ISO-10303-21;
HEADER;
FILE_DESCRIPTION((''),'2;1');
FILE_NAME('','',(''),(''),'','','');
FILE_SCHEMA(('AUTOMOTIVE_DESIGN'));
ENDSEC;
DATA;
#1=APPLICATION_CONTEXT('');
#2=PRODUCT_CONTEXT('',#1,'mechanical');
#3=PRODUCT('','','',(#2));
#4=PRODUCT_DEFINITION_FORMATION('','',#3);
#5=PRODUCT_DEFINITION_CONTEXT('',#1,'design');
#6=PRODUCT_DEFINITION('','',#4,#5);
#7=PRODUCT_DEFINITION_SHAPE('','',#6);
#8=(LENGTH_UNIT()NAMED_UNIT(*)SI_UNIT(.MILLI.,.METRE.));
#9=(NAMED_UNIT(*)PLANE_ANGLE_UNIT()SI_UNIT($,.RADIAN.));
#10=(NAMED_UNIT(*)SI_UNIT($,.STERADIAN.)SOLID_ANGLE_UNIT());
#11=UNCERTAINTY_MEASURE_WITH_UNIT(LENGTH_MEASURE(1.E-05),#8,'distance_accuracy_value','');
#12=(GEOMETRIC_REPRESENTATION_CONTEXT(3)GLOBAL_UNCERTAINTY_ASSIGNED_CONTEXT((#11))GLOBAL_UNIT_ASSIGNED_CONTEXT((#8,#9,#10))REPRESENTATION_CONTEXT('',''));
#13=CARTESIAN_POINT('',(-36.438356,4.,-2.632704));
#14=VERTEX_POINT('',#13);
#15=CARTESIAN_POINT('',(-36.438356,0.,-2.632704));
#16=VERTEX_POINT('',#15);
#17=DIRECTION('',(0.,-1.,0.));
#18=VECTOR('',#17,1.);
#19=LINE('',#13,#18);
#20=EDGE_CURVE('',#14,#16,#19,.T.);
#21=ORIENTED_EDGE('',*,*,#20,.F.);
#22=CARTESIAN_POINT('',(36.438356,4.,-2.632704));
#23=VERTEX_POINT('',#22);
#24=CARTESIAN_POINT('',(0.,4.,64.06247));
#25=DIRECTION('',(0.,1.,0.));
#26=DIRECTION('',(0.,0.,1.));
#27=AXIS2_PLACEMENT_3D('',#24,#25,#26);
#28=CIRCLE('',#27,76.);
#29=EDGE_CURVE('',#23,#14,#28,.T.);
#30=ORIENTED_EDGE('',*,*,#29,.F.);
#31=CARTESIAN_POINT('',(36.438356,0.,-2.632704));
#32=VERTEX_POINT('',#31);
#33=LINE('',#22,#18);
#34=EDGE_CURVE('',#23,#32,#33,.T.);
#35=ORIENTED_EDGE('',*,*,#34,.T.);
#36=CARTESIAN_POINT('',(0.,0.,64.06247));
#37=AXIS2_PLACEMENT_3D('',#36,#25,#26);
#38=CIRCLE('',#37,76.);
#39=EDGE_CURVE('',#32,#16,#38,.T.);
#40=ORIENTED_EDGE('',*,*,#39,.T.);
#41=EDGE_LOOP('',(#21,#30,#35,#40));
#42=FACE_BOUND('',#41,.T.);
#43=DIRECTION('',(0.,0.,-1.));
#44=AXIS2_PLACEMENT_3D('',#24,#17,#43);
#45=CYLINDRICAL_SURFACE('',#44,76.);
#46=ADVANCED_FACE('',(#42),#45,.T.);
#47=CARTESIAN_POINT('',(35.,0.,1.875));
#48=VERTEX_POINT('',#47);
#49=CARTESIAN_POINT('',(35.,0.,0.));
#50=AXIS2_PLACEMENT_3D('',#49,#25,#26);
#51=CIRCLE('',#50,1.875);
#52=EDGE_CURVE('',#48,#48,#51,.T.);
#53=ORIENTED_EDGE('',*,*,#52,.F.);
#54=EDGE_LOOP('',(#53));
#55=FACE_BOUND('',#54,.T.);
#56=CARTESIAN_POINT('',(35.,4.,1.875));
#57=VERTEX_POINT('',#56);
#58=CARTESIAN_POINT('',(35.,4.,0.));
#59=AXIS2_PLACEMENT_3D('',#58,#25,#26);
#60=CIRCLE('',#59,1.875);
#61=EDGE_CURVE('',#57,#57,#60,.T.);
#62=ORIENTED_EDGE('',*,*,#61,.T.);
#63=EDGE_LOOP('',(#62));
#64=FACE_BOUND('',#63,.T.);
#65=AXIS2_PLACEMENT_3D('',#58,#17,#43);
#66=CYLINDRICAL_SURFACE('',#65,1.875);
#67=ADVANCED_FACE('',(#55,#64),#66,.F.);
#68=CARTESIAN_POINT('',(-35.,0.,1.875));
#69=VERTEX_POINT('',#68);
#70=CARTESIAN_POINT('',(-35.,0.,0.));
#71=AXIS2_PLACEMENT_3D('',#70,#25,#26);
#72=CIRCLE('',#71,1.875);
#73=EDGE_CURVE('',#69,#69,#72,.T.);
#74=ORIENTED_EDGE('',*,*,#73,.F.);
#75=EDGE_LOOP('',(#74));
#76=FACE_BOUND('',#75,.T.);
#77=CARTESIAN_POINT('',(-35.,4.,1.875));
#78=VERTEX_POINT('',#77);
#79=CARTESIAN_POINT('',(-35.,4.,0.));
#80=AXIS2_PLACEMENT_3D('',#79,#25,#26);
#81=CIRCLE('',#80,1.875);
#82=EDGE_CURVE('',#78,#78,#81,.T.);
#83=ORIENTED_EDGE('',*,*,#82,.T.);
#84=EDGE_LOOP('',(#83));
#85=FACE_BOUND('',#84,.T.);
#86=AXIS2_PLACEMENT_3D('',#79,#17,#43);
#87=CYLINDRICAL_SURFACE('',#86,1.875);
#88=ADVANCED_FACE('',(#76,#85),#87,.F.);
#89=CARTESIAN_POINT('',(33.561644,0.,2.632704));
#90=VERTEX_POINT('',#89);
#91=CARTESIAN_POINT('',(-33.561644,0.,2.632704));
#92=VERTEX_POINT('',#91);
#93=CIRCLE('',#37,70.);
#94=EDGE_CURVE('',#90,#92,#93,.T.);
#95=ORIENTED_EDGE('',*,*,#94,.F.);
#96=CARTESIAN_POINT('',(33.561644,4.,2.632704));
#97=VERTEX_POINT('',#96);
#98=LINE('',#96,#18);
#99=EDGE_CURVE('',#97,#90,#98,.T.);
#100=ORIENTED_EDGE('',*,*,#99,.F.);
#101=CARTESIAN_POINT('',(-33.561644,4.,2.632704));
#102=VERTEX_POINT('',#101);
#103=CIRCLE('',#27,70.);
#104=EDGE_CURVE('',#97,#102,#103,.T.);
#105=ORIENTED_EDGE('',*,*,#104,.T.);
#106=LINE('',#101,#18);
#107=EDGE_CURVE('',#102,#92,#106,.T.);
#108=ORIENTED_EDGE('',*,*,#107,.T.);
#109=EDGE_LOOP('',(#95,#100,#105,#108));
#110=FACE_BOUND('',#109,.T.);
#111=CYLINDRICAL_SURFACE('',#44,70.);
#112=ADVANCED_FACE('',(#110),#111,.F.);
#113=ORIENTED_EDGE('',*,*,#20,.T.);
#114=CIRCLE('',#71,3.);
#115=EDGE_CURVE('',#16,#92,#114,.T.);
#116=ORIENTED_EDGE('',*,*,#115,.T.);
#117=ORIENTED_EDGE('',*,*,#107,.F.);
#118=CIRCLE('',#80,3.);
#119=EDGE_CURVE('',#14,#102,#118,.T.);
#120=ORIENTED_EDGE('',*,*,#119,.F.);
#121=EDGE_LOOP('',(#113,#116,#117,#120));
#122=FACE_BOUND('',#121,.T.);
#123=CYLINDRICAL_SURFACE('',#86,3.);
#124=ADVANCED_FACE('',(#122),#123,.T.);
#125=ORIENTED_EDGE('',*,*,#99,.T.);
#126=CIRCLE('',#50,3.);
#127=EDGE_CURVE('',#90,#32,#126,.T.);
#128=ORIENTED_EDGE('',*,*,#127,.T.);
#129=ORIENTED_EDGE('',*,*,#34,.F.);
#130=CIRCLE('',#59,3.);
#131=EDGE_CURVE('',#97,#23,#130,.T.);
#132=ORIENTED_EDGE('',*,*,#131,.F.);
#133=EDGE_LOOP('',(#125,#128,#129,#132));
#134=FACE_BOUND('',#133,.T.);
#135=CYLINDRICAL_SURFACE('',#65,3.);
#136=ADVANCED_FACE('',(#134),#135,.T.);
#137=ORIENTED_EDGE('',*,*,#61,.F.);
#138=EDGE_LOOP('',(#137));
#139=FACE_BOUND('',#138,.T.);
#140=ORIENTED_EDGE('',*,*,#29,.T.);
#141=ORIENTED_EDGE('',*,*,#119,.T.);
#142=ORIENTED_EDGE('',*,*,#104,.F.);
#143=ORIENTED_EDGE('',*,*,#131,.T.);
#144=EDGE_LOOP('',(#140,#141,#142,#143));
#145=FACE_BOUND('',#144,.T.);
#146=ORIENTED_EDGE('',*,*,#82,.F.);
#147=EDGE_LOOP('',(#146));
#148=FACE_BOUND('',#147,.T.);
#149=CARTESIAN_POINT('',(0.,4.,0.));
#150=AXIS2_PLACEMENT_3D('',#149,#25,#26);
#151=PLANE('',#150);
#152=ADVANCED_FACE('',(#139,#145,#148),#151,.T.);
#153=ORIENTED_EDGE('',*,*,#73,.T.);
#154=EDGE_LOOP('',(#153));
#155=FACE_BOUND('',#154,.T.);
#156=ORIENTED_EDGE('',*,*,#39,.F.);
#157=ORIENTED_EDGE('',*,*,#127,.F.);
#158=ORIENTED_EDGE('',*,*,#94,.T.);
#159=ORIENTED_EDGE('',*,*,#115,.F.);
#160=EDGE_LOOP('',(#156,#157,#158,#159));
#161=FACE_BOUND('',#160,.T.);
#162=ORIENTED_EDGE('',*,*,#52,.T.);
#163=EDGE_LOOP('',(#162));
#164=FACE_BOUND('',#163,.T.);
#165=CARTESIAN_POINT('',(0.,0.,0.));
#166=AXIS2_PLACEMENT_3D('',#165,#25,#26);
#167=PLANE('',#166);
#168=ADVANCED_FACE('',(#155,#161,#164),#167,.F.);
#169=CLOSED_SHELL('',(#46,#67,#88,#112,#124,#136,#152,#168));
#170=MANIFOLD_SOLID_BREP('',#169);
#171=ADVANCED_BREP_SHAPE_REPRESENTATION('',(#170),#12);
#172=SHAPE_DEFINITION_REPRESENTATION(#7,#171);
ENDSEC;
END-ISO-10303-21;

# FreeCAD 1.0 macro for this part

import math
import FreeCAD as App
import Part
import Sketcher

doc = App.newDocument("Part")
params = doc.addObject("Spreadsheet::Sheet", "Params")
for row, (alias, value) in enumerate([
    ("sketch1_radius", "3 mm"),
    ("sketch1_radius2", "70 mm"),
    ("sketch1_diameter", "3.75 mm"),
    ("pad1_length", "4 mm"),
], start=1):
    params.set(f"A{row}", alias)
    params.set(f"B{row}", "=" + value)
    params.setAlias(f"B{row}", alias)

body = doc.addObject("PartDesign::Body", "Body")

# Sketch on XZ plane
sketch1 = body.newObject("Sketcher::SketchObject", "Sketch")
sketch1.AttachmentSupport = (doc.getObject("XZ_Plane"), [""])
sketch1.MapMode = "FlatFace"
sketch1.addGeometry([
    Part.ArcOfCircle(Part.Circle(App.Vector(-35, 0, 0), App.Vector(0, 0, 1), 3), math.radians(61), math.radians(241)),  # 0
    Part.ArcOfCircle(Part.Circle(App.Vector(0, 64.1, 0), App.Vector(0, 0, 1), 70), math.radians(-119), math.radians(-61)),  # 1
    Part.ArcOfCircle(Part.Circle(App.Vector(35, 0, 0), App.Vector(0, 0, 1), 3), math.radians(-61), math.radians(119)),  # 2
    Part.ArcOfCircle(Part.Circle(App.Vector(0, 64.1, 0), App.Vector(0, 0, 1), 76), math.radians(-119), math.radians(-61)),  # 3
    Part.Circle(App.Vector(-35, 0, 0), App.Vector(0, 0, 1), 1.9),  # 4
    Part.Circle(App.Vector(35, 0, 0), App.Vector(0, 0, 1), 1.9),  # 5
], False)
sketch1.addConstraint([
    Sketcher.Constraint("Tangent", 0, 1, 1, 1),
    Sketcher.Constraint("Tangent", 1, 2, 2, 2),
    Sketcher.Constraint("Tangent", 2, 1, 3, 2),
    Sketcher.Constraint("Tangent", 3, 1, 0, 2),
    Sketcher.Constraint("Coincident", 3, 3, 1, 3),
    Sketcher.Constraint("Coincident", 4, 3, 0, 3),
    Sketcher.Constraint("Coincident", 5, 3, 2, 3),
    Sketcher.Constraint("Equal", 4, 5),
    Sketcher.Constraint("Symmetric", 0, 3, 2, 3, -1, 1),
    Sketcher.Constraint("PointOnObject", 0, 3, -1),
    Sketcher.Constraint("Radius", 0, 3.0),
    Sketcher.Constraint("Radius", 1, 70.0),
    Sketcher.Constraint("Diameter", 4, 3.75),
    Sketcher.Constraint("DistanceX", 0, 3, -1, 1, 35.0),
])
sketch1.setExpression("Constraints[10]", "Params.sketch1_radius")
sketch1.setExpression("Constraints[11]", "Params.sketch1_radius2")
sketch1.setExpression("Constraints[12]", "Params.sketch1_diameter")
pad1 = body.newObject("PartDesign::Pad", "Pad")
pad1.Profile = sketch1
pad1.setExpression("Length", "Params.pad1_length")
pad1.Reversed = True

doc.recompute()
